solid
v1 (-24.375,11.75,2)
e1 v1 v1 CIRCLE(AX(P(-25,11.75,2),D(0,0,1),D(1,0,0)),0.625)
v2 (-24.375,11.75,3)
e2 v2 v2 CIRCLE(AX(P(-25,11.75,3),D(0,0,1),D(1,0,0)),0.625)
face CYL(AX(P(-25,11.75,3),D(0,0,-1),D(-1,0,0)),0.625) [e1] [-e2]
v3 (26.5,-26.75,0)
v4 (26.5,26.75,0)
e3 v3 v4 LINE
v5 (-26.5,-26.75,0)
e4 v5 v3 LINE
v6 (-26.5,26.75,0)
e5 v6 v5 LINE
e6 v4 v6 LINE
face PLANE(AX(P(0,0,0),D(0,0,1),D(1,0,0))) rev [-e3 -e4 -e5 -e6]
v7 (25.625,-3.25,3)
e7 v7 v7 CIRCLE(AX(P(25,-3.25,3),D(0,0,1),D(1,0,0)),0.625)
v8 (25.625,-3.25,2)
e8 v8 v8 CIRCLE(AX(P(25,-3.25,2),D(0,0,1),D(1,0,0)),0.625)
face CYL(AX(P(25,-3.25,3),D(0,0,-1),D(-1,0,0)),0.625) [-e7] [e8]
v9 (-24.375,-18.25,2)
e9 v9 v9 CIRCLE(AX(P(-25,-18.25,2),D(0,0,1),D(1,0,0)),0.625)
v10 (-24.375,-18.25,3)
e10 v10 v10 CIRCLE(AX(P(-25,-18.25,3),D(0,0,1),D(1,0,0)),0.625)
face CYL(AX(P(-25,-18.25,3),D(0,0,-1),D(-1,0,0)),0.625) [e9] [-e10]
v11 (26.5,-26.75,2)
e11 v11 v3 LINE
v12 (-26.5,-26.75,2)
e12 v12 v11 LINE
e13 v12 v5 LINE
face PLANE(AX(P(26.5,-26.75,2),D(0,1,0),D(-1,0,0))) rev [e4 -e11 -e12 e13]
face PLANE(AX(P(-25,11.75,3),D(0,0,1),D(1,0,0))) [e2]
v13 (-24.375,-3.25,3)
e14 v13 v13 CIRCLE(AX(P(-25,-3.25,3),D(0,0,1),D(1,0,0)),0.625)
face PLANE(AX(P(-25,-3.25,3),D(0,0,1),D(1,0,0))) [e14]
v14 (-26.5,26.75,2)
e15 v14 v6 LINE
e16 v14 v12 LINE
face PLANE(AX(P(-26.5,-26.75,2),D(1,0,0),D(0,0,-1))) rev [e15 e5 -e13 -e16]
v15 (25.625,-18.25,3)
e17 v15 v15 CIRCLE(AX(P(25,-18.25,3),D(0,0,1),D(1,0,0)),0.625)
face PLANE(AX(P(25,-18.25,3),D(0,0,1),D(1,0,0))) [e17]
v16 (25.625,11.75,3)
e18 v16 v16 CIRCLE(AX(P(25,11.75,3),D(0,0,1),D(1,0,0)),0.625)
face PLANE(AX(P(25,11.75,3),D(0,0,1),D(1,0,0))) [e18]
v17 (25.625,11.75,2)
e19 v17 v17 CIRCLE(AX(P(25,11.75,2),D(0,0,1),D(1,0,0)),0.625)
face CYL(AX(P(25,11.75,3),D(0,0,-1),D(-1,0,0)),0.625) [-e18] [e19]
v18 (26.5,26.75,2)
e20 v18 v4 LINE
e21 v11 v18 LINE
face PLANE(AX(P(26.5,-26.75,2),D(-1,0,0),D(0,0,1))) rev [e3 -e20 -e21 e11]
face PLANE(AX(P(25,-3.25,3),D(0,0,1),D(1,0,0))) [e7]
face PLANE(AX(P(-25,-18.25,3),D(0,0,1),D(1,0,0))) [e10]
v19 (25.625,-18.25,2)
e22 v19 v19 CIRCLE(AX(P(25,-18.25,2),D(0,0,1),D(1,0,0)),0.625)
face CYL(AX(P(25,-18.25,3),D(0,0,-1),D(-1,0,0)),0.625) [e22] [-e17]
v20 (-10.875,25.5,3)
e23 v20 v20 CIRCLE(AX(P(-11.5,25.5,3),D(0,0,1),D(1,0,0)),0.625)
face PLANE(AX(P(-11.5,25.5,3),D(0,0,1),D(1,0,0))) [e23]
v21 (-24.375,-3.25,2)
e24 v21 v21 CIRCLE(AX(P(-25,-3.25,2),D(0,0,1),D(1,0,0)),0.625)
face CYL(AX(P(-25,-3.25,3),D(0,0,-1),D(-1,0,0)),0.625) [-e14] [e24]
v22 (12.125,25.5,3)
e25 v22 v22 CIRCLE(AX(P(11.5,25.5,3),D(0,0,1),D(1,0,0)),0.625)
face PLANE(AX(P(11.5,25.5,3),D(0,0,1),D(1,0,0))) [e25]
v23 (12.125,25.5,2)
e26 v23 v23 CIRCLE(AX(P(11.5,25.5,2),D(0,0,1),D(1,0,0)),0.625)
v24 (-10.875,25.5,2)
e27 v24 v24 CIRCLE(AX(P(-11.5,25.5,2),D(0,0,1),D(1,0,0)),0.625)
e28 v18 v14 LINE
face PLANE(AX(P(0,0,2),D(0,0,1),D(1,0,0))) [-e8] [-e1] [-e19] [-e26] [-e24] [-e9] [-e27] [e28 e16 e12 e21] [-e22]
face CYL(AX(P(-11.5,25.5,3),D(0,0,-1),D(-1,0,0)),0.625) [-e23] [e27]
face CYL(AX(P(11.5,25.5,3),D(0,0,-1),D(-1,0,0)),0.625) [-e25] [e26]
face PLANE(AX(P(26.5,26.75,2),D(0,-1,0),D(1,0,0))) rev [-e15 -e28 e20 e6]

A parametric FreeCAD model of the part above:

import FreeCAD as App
import Part
import Sketcher
from FreeCAD import Vector


def add_polygon(sketch, points):
    """Adds a closed chain of lines whose ends are joined by coincident constraints."""
    first, n = sketch.GeometryCount, len(points)
    for a, b in zip(points, points[1:] + points[:1]):
        sketch.addGeometry(Part.LineSegment(App.Vector(*a, 0), App.Vector(*b, 0)), False)
    for i in range(n):
        sketch.addConstraint(Sketcher.Constraint("Coincident", first + i, 2, first + (i + 1) % n, 1))

doc = App.newDocument("Part")
body = doc.addObject("PartDesign::Body", "Body")

# Sketch on XY plane
sketch1 = doc.addObject("Sketcher::SketchObject", "Sketch")
body.addObject(sketch1)
sketch1.AttachmentSupport = (doc.XY_Plane, [""])
sketch1.MapMode = "FlatFace"
add_polygon(sketch1, [(-26, 27), (-26, -27), (26, -27), (26, 27)])  # lines 0-3
sketch1.addConstraint([
    Sketcher.Constraint("Vertical", 0),
    Sketcher.Constraint("Horizontal", 1),
    Sketcher.Constraint("Vertical", 2),
    Sketcher.Constraint("Horizontal", 3),
    Sketcher.Constraint("Symmetric", 0, 2, 2, 2, -1, 1),
    Sketcher.Constraint("DistanceX", 1, 1, 1, 2, 53.0),
    Sketcher.Constraint("DistanceY", 0, 2, 0, 1, 53.5),
])
pad1 = doc.addObject("PartDesign::Pad", "Pad")
body.addObject(pad1)
pad1.Profile = sketch1
pad1.Length = 2

# Sketch on XY plane
sketch2 = doc.addObject("Sketcher::SketchObject", "Sketch001")
body.addObject(sketch2)
sketch2.AttachmentSupport = (doc.XY_Plane, [""])
sketch2.MapMode = "FlatFace"
sketch2.AttachmentOffset = App.Placement(Vector(0, 0, 2), App.Rotation())
sketch2.addGeometry([
    Part.Circle(Vector(-11.5, 25.5, 0), Vector(0, 0, 1), 0.6),  # 0
    Part.Circle(Vector(11.5, 25.5, 0), Vector(0, 0, 1), 0.6),  # 1
    Part.Circle(Vector(-25, 11.8, 0), Vector(0, 0, 1), 0.6),  # 2
    Part.Circle(Vector(-25, -3.2, 0), Vector(0, 0, 1), 0.6),  # 3
    Part.Circle(Vector(-25, -18.2, 0), Vector(0, 0, 1), 0.6),  # 4
    Part.Circle(Vector(25, 11.8, 0), Vector(0, 0, 1), 0.6),  # 5
    Part.Circle(Vector(25, -3.2, 0), Vector(0, 0, 1), 0.6),  # 6
    Part.Circle(Vector(25, -18.2, 0), Vector(0, 0, 1), 0.6),  # 7
], False)
sketch2.addConstraint([
    Sketcher.Constraint("Equal", 0, 1),
    Sketcher.Constraint("Equal", 1, 2),
    Sketcher.Constraint("Equal", 2, 3),
    Sketcher.Constraint("Equal", 3, 4),
    Sketcher.Constraint("Equal", 4, 5),
    Sketcher.Constraint("Equal", 5, 6),
    Sketcher.Constraint("Equal", 6, 7),
    Sketcher.Constraint("Symmetric", 0, 3, 1, 3, -2),
    Sketcher.Constraint("Symmetric", 2, 3, 5, 3, -2),
    Sketcher.Constraint("Symmetric", 3, 3, 6, 3, -2),
    Sketcher.Constraint("Symmetric", 4, 3, 7, 3, -2),
    Sketcher.Constraint("Vertical", 2, 3, 3, 3),
    Sketcher.Constraint("Vertical", 3, 3, 4, 3),
    Sketcher.Constraint("Diameter", 0, 1.25),
    Sketcher.Constraint("DistanceX", 2, 3, -1, 1, 25.0),
    Sketcher.Constraint("DistanceX", 0, 3, 1, 3, 23.0),
    Sketcher.Constraint("DistanceY", 3, 3, 2, 3, 15.0),
    Sketcher.Constraint("DistanceY", 4, 3, 3, 3, 15.0),
    Sketcher.Constraint("DistanceY", -1, 1, 0, 3, 25.5),
    Sketcher.Constraint("DistanceY", -1, 1, 2, 3, 11.75),
])
pad2 = doc.addObject("PartDesign::Pad", "Pad001")
body.addObject(pad2)
pad2.Profile = sketch2
pad2.Length = 1

doc.recompute()
